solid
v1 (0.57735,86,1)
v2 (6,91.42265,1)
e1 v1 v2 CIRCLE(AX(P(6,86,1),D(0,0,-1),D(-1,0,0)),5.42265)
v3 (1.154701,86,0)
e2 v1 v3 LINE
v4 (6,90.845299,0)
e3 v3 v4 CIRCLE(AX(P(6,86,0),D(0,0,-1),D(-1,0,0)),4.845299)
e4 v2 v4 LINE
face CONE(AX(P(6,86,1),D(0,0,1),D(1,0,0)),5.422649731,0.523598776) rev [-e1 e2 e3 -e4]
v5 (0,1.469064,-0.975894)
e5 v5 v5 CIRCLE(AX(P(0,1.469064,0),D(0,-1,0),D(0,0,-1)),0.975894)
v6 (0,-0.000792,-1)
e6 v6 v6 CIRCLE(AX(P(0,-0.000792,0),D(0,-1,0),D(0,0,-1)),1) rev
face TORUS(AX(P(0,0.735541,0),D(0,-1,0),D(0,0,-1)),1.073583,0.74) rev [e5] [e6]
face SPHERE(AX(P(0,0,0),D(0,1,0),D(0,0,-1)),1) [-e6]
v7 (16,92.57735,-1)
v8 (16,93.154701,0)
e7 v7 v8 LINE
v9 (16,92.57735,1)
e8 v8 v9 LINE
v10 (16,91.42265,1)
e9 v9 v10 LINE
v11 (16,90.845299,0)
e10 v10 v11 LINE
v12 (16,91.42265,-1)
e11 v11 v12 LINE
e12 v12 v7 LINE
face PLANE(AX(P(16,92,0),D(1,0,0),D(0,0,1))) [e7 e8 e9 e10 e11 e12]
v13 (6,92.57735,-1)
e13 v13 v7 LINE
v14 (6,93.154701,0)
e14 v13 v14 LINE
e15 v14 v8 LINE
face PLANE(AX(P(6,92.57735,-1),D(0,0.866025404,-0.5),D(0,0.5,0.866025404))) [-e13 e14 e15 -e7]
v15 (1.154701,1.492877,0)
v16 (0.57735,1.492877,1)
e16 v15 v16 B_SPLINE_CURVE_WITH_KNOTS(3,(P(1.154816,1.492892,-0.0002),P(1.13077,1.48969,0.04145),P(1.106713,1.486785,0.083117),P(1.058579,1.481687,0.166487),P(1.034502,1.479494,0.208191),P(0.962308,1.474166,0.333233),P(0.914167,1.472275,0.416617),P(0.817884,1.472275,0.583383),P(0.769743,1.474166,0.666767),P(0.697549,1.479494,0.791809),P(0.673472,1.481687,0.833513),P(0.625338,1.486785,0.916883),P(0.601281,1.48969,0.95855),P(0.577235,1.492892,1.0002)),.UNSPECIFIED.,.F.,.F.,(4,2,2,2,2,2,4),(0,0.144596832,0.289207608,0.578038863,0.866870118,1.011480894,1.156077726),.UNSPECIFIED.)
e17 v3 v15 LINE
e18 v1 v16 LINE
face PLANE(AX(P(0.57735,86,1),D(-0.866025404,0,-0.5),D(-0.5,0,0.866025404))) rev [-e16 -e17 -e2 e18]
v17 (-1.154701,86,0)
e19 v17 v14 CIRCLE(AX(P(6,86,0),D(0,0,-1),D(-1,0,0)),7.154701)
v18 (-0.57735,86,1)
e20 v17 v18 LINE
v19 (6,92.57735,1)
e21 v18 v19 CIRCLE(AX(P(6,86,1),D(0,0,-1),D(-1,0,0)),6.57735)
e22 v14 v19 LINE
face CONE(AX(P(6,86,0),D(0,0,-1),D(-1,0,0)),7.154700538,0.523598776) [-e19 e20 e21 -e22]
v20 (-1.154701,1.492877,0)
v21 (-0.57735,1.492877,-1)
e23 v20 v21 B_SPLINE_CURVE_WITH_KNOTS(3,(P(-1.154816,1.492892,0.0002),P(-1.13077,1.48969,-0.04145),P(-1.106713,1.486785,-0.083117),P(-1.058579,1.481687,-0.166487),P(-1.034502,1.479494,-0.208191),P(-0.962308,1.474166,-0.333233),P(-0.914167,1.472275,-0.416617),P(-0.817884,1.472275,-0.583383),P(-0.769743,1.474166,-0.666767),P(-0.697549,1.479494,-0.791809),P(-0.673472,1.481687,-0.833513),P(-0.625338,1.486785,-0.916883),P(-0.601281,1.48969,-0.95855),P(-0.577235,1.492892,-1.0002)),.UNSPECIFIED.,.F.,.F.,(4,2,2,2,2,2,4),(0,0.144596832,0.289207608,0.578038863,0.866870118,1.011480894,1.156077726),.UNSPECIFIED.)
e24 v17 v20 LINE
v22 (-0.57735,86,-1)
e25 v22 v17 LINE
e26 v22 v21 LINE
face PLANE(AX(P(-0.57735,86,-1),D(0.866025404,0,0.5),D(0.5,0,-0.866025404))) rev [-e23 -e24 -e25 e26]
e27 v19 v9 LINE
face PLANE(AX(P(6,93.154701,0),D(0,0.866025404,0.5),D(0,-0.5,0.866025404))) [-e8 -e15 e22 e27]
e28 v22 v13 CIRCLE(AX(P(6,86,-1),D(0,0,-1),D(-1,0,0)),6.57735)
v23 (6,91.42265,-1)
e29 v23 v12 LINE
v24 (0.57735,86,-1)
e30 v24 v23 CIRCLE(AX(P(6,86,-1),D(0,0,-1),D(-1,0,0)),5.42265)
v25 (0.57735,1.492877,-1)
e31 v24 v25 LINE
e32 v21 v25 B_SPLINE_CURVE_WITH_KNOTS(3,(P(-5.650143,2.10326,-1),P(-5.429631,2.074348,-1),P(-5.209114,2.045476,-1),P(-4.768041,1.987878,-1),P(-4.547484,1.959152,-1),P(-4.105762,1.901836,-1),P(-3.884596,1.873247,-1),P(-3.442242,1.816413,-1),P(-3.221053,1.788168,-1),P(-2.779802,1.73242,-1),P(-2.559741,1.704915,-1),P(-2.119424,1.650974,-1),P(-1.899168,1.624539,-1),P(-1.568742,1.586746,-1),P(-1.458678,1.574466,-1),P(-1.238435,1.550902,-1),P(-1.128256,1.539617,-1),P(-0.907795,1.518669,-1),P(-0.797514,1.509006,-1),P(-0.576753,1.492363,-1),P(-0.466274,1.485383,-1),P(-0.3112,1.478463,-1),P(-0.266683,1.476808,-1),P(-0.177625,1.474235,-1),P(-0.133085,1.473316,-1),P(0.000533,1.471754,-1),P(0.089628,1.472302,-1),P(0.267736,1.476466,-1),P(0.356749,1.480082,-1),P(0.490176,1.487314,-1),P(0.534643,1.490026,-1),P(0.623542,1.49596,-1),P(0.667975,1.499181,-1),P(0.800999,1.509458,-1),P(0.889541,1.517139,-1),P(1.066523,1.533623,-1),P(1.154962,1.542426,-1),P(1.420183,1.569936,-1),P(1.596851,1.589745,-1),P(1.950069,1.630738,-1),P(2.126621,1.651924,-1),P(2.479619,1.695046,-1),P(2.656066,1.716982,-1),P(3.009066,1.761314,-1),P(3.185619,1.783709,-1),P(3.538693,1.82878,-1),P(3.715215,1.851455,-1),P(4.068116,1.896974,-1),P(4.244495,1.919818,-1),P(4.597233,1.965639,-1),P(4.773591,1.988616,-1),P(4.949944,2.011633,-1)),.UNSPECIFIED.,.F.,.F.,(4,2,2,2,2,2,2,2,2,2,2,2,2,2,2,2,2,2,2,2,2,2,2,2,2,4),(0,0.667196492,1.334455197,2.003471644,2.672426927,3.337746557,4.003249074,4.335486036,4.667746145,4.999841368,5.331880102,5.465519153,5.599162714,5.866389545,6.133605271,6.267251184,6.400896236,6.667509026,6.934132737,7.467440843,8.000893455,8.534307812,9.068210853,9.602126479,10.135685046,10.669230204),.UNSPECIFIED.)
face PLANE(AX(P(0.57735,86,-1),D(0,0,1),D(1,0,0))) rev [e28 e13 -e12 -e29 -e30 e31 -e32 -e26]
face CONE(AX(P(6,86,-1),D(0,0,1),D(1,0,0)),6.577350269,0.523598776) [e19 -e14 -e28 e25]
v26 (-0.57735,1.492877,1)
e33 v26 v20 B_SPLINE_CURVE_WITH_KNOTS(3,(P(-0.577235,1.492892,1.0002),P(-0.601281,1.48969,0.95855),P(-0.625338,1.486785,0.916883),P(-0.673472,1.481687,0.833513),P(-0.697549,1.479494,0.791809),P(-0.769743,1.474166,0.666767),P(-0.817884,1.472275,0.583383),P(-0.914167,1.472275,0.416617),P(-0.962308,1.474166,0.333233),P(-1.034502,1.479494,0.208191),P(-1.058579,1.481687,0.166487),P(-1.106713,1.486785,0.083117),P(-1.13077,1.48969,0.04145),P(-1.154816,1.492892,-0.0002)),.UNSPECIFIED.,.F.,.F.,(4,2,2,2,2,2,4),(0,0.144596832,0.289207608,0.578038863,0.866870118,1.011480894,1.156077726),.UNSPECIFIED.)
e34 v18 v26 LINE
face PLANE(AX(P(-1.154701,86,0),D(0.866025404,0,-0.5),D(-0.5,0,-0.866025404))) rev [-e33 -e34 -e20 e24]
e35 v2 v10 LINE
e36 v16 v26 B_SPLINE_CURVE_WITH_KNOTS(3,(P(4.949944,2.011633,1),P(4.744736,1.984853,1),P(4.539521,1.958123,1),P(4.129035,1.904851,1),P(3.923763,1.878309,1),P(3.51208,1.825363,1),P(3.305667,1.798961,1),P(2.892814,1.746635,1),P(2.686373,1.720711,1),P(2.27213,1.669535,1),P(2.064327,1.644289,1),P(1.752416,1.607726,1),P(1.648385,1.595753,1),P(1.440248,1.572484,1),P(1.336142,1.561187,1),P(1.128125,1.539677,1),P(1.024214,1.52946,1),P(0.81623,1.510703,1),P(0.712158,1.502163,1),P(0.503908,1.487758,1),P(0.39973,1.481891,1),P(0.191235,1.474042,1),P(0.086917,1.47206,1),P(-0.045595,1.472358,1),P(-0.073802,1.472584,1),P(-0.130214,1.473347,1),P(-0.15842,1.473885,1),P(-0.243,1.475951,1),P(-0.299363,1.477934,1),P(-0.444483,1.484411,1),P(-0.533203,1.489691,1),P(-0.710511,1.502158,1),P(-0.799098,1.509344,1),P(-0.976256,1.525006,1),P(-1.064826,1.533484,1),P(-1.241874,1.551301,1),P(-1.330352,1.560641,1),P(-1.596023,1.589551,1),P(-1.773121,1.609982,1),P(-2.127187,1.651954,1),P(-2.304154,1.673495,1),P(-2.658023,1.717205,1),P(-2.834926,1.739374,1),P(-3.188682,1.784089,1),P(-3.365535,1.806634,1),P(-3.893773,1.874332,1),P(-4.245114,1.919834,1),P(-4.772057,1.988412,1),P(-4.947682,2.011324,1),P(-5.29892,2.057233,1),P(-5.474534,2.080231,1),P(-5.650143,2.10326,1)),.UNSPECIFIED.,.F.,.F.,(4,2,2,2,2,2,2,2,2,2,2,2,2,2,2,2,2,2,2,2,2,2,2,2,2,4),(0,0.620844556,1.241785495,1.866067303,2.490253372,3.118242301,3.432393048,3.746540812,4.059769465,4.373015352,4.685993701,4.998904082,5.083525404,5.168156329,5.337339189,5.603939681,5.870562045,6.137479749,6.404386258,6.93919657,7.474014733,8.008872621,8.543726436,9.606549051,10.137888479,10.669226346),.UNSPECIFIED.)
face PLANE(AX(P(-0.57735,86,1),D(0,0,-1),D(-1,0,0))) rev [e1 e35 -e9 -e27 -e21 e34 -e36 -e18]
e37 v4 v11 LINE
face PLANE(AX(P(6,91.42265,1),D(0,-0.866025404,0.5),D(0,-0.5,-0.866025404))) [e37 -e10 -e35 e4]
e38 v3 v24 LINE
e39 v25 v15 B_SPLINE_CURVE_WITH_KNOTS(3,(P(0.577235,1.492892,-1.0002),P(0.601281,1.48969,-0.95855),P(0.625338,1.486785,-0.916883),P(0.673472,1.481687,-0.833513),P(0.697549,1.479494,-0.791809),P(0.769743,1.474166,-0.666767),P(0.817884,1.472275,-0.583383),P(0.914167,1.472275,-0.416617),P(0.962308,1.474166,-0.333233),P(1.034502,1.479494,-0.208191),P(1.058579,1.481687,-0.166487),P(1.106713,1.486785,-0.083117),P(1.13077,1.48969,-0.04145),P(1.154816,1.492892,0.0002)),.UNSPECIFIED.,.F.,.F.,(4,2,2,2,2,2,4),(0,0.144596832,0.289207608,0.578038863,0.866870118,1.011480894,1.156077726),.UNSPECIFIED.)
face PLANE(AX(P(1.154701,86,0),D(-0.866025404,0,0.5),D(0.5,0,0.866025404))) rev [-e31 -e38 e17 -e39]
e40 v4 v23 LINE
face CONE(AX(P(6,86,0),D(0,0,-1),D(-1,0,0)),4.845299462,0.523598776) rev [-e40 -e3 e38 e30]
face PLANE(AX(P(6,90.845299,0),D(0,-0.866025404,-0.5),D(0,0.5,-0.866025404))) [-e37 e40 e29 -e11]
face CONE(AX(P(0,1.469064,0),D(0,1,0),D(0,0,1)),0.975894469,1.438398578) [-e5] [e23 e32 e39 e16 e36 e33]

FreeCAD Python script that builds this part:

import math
import FreeCAD as App
import Part
import Sketcher
Q = App.Units.Quantity


def add_polygon(sketch, points):
    """Adds a closed chain of lines whose ends are joined by coincident constraints."""
    first, n = sketch.GeometryCount, len(points)
    for a, b in zip(points, points[1:] + points[:1]):
        sketch.addGeometry(Part.LineSegment(App.Vector(*a, 0), App.Vector(*b, 0)), False)
    for i in range(n):
        sketch.addConstraint(Sketcher.Constraint("Coincident", first + i, 2, first + (i + 1) % n, 1))

doc = App.newDocument("Part")
params = doc.addObject("Spreadsheet::Sheet", "Params")
for row, (alias, value) in enumerate([
    ("sketch2_radius", "6 mm"),
    ("sketch2_width", "10 mm"),
    ("sketch2_height", "86 mm"),
    ("sketch3_radius", "1 mm"),
    ("revolution_angle", "360 deg"),
    ("sketch4_height", "2 mm"),
    ("sketch4_radius", "0.74 mm"),
    ("groove_angle", "360 deg"),
], start=1):
    params.set(f"A{row}", alias)
    params.set(f"B{row}", "=" + value)
    params.setAlias(f"B{row}", alias)

body = doc.addObject("PartDesign::Body", "Body")

sketch1 = body.newObject("Sketcher::SketchObject", "Sketch")
sketch1.AttachmentSupport = (doc.getObject("XZ_Plane"), [""])
sketch1.MapMode = "FlatFace"
add_polygon(sketch1, [(-0.6, -1), (-1.2, 0), (-0.6, 1), (0.6, 1), (1.2, 0), (0.6, -1)])
sketch1.addConstraint(Sketcher.Constraint("Horizontal", 2))
sketch1.addConstraint(Sketcher.Constraint("Horizontal", 5))
sketch1.addConstraint(Sketcher.Constraint("Symmetric", 0, 2, 3, 2, -1, 1))
sketch1.addConstraint(Sketcher.Constraint("Symmetric", 1, 2, 4, 2, -1, 1))
sketch1.addConstraint(Sketcher.Constraint("PointOnObject", 0, 2, -1))
sketch1.addConstraint(Sketcher.Constraint("Parallel", 0, 3))
sketch1.addConstraint(Sketcher.Constraint("Vertical", 2, 2, 4, 2))
sketch1.addConstraint(Sketcher.Constraint("Angle", 0, Q("120 deg")))
sketch1.addConstraint(Sketcher.Constraint("DistanceY", -1, 1, 1, 2, Q("1 mm")))
sketch1.addConstraint(Sketcher.Constraint("DistanceX", 2, 1, 2, 2, Q("1.154701 mm")))

sketch2 = body.newObject("Sketcher::SketchObject", "Sketch001")
sketch2.AttachmentSupport = (doc.getObject("XY_Plane"), [""])
sketch2.MapMode = "FlatFace"
sketch2.addGeometry(Part.LineSegment(App.Vector(0, 0, 0), App.Vector(0, 86, 0)), False)
sketch2.addGeometry(Part.ArcOfCircle(Part.Circle(App.Vector(6, 86, 0), App.Vector(0, 0, 1), 6), math.radians(90), math.radians(180)), False)
sketch2.addGeometry(Part.LineSegment(App.Vector(6, 92, 0), App.Vector(16, 92, 0)), False)
sketch2.addConstraint(Sketcher.Constraint("Tangent", 0, 2, 1, 2))
sketch2.addConstraint(Sketcher.Constraint("Tangent", 1, 1, 2, 1))
sketch2.addConstraint(Sketcher.Constraint("Vertical", 0))
sketch2.addConstraint(Sketcher.Constraint("Horizontal", 2))
sketch2.addConstraint(Sketcher.Constraint("Coincident", 0, 1, -1, 1))
sketch2.addConstraint(Sketcher.Constraint("Radius", 1, Q("6 mm")))
sketch2.addConstraint(Sketcher.Constraint("DistanceX", 2, 1, 2, 2, Q("10 mm")))
sketch2.addConstraint(Sketcher.Constraint("DistanceY", 0, 1, 0, 2, Q("86 mm")))
sketch2.setExpression("Constraints[5]", "Params.sketch2_radius")
sketch2.setExpression("Constraints[6]", "Params.sketch2_width")
sketch2.setExpression("Constraints[7]", "Params.sketch2_height")
doc.recompute()

additivepipe = body.newObject("PartDesign::AdditivePipe", "AdditivePipe")
additivepipe.Profile = sketch1
additivepipe.Spine = (sketch2, ["Edge1", "Edge2", "Edge3"])

sketch3 = body.newObject("Sketcher::SketchObject", "Sketch002")
sketch3.AttachmentSupport = (doc.getObject("YZ_Plane"), [""])
sketch3.MapMode = "FlatFace"
sketch3.addGeometry(Part.LineSegment(App.Vector(1, 0, 0), App.Vector(-1, 0, 0)), False)
sketch3.addGeometry(Part.ArcOfCircle(Part.Circle(App.Vector(0, 0, 0), App.Vector(0, 0, 1), 1), math.radians(180), math.radians(360)), False)
sketch3.addConstraint(Sketcher.Constraint("Coincident", 0, 1, 1, 2))
sketch3.addConstraint(Sketcher.Constraint("Coincident", 1, 1, 0, 2))
sketch3.addConstraint(Sketcher.Constraint("Horizontal", 0))
sketch3.addConstraint(Sketcher.Constraint("Coincident", 1, 3, -1, 1))
sketch3.addConstraint(Sketcher.Constraint("PointOnObject", 0, 1, -1))
sketch3.addConstraint(Sketcher.Constraint("Radius", 1, Q("1 mm")))
sketch3.setExpression("Constraints[5]", "Params.sketch3_radius")
revolution = body.newObject("PartDesign::Revolution", "Revolution")
revolution.Profile = sketch3
revolution.ReferenceAxis = (sketch3, ["H_Axis"])
revolution.setExpression("Angle", "Params.revolution_angle")

sketch4 = body.newObject("Sketcher::SketchObject", "Sketch003")
sketch4.AttachmentSupport = (doc.getObject("XY_Plane"), [""])
sketch4.MapMode = "FlatFace"
sketch4.addGeometry(Part.LineSegment(App.Vector(-3.1, -0.3, 0), App.Vector(-1.2, 0, 0)), False)
sketch4.addGeometry(Part.ArcOfCircle(Part.Circle(App.Vector(-1.1, 0.7, 0), App.Vector(0, 0, 1), 0.7), math.radians(-96), math.radians(82)), False)
sketch4.addGeometry(Part.LineSegment(App.Vector(-1, 1.5, 0), App.Vector(-3.1, 1.7, 0)), False)
sketch4.addGeometry(Part.LineSegment(App.Vector(-3.1, 1.7, 0), App.Vector(-3.1, -0.3, 0)), False)
sketch4.addConstraint(Sketcher.Constraint("Coincident", 0, 2, 1, 1))
sketch4.addConstraint(Sketcher.Constraint("Tangent", 1, 2, 2, 1))
sketch4.addConstraint(Sketcher.Constraint("Coincident", 2, 2, 3, 1))
sketch4.addConstraint(Sketcher.Constraint("Coincident", 3, 2, 0, 1))
sketch4.addConstraint(Sketcher.Constraint("Vertical", 3))
sketch4.addConstraint(Sketcher.Constraint("PointOnObject", 0, 2, -1))
sketch4.addConstraint(Sketcher.Constraint("DistanceY", 3, 2, 3, 1, Q("2 mm")))
sketch4.addConstraint(Sketcher.Constraint("Radius", 1, Q("0.74 mm")))
sketch4.addConstraint(Sketcher.Constraint("DistanceX", 0, 2, -1, 1, Q("1.154701 mm")))
sketch4.addConstraint(Sketcher.Constraint("Distance", 2, Q("2.101141 mm")))
sketch4.addConstraint(Sketcher.Constraint("DistanceY", -1, 1, 1, 3, Q("0.735541 mm")))
sketch4.addConstraint(Sketcher.Constraint("DistanceY", -1, 1, 2, 2, Q("1.746439 mm")))
sketch4.setExpression("Constraints[6]", "Params.sketch4_height")
sketch4.setExpression("Constraints[7]", "Params.sketch4_radius")
groove = body.newObject("PartDesign::Groove", "Groove")
groove.Profile = sketch4
groove.ReferenceAxis = (sketch4, ["V_Axis"])
groove.setExpression("Angle", "Params.groove_angle")

doc.recompute()
